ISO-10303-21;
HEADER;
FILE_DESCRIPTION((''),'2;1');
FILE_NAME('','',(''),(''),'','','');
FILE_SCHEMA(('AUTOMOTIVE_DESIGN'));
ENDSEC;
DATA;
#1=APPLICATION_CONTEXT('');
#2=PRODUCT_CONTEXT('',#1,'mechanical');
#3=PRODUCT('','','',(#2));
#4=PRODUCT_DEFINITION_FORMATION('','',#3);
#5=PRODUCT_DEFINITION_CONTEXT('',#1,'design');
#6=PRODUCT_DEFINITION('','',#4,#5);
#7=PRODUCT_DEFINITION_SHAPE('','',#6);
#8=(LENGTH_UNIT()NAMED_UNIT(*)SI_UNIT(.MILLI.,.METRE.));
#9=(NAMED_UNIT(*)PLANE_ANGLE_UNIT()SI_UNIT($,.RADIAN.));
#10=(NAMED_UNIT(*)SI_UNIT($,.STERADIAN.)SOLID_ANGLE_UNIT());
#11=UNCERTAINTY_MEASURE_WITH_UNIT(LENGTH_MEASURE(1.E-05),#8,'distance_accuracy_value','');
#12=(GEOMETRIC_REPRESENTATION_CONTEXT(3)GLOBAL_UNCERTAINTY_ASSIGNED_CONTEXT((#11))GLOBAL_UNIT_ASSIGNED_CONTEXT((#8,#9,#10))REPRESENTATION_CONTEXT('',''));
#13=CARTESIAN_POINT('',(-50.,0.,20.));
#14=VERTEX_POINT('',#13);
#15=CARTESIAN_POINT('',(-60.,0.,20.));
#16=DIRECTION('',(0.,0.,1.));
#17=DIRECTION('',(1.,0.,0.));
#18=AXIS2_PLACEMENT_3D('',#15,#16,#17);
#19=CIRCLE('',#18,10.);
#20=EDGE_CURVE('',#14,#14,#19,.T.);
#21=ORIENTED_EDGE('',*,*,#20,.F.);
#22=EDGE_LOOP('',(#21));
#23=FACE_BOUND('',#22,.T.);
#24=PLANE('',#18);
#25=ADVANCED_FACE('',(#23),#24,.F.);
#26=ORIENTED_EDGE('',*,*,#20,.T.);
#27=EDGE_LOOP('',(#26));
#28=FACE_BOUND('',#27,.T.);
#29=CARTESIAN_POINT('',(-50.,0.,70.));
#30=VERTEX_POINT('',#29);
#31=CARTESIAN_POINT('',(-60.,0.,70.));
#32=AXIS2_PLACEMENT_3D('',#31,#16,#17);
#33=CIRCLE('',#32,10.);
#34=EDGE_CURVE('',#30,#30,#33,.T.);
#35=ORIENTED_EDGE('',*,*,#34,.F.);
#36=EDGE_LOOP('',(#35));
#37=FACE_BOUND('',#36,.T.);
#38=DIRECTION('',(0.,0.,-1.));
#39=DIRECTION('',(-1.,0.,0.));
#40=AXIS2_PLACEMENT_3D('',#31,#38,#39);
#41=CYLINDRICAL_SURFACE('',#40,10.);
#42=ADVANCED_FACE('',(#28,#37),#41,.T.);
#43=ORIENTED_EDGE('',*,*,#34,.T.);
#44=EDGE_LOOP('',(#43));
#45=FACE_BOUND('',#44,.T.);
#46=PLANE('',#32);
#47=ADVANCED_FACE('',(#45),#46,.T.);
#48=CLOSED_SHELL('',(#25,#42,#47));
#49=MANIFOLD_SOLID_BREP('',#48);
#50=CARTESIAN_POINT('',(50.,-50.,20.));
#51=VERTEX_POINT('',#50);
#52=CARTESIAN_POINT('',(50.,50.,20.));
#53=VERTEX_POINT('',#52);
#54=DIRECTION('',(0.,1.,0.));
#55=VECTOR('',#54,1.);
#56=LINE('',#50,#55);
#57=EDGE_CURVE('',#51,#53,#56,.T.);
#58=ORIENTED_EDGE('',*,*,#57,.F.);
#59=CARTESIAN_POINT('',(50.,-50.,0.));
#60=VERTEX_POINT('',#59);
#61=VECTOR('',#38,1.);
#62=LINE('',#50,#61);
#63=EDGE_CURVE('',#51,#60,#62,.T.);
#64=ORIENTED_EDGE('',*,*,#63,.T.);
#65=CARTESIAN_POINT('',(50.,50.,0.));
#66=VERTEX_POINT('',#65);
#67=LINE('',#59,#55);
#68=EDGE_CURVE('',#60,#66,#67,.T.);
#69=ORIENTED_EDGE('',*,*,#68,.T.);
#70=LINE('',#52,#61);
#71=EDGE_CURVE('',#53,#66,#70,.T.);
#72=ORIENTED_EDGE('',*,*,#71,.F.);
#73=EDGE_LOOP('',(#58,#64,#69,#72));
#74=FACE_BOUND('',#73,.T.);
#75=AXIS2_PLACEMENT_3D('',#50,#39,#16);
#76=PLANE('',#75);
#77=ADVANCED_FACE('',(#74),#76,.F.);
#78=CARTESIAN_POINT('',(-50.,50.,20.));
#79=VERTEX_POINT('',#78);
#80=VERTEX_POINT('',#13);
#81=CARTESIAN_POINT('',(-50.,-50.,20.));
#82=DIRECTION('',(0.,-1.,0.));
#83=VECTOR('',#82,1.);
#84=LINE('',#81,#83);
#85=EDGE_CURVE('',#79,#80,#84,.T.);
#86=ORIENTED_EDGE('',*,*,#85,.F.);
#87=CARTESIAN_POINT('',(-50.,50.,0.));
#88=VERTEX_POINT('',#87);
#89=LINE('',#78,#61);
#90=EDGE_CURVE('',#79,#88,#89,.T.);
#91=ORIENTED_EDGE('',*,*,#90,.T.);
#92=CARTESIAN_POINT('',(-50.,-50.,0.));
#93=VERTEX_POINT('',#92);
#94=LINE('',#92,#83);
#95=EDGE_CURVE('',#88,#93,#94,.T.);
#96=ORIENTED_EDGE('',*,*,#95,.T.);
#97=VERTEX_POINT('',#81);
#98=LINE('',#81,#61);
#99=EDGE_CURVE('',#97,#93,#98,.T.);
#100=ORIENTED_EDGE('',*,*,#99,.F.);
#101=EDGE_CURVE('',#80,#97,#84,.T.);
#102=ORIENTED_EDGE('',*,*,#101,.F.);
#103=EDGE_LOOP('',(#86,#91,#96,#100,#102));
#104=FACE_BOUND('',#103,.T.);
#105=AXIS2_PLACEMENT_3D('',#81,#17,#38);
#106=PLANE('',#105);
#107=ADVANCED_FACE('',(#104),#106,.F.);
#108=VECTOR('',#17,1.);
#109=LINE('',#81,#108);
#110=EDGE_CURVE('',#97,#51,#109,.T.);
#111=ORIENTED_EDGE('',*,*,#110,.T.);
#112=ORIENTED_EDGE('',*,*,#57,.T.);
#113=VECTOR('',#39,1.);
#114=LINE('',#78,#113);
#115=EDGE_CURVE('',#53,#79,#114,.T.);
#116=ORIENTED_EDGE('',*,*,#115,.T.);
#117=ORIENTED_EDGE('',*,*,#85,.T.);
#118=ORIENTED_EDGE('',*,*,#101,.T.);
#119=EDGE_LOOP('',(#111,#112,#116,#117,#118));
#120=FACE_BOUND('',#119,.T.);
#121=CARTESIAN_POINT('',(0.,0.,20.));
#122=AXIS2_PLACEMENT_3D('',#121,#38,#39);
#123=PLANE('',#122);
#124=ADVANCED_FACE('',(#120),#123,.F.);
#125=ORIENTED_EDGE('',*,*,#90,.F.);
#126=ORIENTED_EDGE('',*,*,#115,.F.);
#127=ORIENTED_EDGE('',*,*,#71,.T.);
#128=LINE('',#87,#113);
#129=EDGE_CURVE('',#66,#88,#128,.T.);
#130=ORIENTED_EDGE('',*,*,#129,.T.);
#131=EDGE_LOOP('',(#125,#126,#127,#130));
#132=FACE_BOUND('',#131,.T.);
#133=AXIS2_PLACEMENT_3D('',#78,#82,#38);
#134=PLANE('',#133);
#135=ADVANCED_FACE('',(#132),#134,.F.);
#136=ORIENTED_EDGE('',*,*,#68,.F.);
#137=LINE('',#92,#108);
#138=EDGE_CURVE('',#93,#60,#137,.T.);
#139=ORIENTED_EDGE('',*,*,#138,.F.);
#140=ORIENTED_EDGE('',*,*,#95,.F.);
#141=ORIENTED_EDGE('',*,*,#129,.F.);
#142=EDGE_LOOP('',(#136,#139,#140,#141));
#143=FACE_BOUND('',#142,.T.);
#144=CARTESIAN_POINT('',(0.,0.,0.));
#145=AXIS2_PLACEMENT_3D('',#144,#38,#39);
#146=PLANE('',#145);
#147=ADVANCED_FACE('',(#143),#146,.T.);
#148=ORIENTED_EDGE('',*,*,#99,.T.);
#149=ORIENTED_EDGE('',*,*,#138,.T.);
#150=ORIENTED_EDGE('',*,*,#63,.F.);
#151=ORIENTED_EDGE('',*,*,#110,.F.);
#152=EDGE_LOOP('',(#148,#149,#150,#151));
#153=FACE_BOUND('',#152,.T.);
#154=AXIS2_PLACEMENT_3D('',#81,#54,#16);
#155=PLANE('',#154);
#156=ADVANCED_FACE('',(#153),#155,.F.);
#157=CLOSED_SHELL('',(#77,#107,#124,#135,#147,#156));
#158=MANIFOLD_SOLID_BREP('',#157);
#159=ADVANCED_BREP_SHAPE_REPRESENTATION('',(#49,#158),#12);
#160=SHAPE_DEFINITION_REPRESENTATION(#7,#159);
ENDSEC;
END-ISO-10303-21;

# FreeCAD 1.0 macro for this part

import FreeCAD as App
import Part
import Sketcher

doc = App.newDocument("Part")
body = doc.addObject("PartDesign::Body", "Body")

sketch1 = body.newObject("Sketcher::SketchObject", "Sketch")
sketch1.AttachmentSupport = (doc.getObject("XY_Plane"), [""])
sketch1.MapMode = "FlatFace"
sketch1.addGeometry([
    Part.LineSegment(App.Vector(-50, 50, 0), App.Vector(-50, -50, 0)),
    Part.LineSegment(App.Vector(-50, -50, 0), App.Vector(50, -50, 0)),
    Part.LineSegment(App.Vector(50, -50, 0), App.Vector(50, 50, 0)),
    Part.LineSegment(App.Vector(50, 50, 0), App.Vector(-50, 50, 0)),
], False)
sketch1.addConstraint([
    Sketcher.Constraint("Coincident", 0, 2, 1, 1),
    Sketcher.Constraint("Coincident", 1, 2, 2, 1),
    Sketcher.Constraint("Coincident", 2, 2, 3, 1),
    Sketcher.Constraint("Coincident", 3, 2, 0, 1),
    Sketcher.Constraint("Vertical", 0),
    Sketcher.Constraint("Horizontal", 1),
    Sketcher.Constraint("Vertical", 2),
    Sketcher.Constraint("Horizontal", 3),
    Sketcher.Constraint("Symmetric", 0, 2, 2, 2, -1, 1),
    Sketcher.Constraint("Equal", 3, 0),
    Sketcher.Constraint("DistanceX", 1, 1, 1, 2, 100.0),
])
pad1 = body.newObject("PartDesign::Pad", "Pad")
pad1.Profile = sketch1
pad1.Length = 20
body2 = doc.addObject("PartDesign::Body", "Body001")

sketch2 = body2.newObject("Sketcher::SketchObject", "Sketch001")
sketch2.AttachmentSupport = (doc.getObject("XY_Plane001"), [""])
sketch2.MapMode = "FlatFace"
sketch2.AttachmentOffset = App.Placement(App.Vector(0, 0, 20), App.Rotation())
sketch2.addGeometry(Part.Circle(App.Vector(-60, 0, 0), App.Vector(0, 0, 1), 10), False)
sketch2.addConstraint([
    Sketcher.Constraint("PointOnObject", 0, 3, -1),
    Sketcher.Constraint("Diameter", 0, 20.0),
    Sketcher.Constraint("DistanceX", 0, 3, -1, 1, 60.0),
])
pad2 = body2.newObject("PartDesign::Pad", "Pad001")
pad2.Profile = sketch2
pad2.Length = 50

doc.recompute()
